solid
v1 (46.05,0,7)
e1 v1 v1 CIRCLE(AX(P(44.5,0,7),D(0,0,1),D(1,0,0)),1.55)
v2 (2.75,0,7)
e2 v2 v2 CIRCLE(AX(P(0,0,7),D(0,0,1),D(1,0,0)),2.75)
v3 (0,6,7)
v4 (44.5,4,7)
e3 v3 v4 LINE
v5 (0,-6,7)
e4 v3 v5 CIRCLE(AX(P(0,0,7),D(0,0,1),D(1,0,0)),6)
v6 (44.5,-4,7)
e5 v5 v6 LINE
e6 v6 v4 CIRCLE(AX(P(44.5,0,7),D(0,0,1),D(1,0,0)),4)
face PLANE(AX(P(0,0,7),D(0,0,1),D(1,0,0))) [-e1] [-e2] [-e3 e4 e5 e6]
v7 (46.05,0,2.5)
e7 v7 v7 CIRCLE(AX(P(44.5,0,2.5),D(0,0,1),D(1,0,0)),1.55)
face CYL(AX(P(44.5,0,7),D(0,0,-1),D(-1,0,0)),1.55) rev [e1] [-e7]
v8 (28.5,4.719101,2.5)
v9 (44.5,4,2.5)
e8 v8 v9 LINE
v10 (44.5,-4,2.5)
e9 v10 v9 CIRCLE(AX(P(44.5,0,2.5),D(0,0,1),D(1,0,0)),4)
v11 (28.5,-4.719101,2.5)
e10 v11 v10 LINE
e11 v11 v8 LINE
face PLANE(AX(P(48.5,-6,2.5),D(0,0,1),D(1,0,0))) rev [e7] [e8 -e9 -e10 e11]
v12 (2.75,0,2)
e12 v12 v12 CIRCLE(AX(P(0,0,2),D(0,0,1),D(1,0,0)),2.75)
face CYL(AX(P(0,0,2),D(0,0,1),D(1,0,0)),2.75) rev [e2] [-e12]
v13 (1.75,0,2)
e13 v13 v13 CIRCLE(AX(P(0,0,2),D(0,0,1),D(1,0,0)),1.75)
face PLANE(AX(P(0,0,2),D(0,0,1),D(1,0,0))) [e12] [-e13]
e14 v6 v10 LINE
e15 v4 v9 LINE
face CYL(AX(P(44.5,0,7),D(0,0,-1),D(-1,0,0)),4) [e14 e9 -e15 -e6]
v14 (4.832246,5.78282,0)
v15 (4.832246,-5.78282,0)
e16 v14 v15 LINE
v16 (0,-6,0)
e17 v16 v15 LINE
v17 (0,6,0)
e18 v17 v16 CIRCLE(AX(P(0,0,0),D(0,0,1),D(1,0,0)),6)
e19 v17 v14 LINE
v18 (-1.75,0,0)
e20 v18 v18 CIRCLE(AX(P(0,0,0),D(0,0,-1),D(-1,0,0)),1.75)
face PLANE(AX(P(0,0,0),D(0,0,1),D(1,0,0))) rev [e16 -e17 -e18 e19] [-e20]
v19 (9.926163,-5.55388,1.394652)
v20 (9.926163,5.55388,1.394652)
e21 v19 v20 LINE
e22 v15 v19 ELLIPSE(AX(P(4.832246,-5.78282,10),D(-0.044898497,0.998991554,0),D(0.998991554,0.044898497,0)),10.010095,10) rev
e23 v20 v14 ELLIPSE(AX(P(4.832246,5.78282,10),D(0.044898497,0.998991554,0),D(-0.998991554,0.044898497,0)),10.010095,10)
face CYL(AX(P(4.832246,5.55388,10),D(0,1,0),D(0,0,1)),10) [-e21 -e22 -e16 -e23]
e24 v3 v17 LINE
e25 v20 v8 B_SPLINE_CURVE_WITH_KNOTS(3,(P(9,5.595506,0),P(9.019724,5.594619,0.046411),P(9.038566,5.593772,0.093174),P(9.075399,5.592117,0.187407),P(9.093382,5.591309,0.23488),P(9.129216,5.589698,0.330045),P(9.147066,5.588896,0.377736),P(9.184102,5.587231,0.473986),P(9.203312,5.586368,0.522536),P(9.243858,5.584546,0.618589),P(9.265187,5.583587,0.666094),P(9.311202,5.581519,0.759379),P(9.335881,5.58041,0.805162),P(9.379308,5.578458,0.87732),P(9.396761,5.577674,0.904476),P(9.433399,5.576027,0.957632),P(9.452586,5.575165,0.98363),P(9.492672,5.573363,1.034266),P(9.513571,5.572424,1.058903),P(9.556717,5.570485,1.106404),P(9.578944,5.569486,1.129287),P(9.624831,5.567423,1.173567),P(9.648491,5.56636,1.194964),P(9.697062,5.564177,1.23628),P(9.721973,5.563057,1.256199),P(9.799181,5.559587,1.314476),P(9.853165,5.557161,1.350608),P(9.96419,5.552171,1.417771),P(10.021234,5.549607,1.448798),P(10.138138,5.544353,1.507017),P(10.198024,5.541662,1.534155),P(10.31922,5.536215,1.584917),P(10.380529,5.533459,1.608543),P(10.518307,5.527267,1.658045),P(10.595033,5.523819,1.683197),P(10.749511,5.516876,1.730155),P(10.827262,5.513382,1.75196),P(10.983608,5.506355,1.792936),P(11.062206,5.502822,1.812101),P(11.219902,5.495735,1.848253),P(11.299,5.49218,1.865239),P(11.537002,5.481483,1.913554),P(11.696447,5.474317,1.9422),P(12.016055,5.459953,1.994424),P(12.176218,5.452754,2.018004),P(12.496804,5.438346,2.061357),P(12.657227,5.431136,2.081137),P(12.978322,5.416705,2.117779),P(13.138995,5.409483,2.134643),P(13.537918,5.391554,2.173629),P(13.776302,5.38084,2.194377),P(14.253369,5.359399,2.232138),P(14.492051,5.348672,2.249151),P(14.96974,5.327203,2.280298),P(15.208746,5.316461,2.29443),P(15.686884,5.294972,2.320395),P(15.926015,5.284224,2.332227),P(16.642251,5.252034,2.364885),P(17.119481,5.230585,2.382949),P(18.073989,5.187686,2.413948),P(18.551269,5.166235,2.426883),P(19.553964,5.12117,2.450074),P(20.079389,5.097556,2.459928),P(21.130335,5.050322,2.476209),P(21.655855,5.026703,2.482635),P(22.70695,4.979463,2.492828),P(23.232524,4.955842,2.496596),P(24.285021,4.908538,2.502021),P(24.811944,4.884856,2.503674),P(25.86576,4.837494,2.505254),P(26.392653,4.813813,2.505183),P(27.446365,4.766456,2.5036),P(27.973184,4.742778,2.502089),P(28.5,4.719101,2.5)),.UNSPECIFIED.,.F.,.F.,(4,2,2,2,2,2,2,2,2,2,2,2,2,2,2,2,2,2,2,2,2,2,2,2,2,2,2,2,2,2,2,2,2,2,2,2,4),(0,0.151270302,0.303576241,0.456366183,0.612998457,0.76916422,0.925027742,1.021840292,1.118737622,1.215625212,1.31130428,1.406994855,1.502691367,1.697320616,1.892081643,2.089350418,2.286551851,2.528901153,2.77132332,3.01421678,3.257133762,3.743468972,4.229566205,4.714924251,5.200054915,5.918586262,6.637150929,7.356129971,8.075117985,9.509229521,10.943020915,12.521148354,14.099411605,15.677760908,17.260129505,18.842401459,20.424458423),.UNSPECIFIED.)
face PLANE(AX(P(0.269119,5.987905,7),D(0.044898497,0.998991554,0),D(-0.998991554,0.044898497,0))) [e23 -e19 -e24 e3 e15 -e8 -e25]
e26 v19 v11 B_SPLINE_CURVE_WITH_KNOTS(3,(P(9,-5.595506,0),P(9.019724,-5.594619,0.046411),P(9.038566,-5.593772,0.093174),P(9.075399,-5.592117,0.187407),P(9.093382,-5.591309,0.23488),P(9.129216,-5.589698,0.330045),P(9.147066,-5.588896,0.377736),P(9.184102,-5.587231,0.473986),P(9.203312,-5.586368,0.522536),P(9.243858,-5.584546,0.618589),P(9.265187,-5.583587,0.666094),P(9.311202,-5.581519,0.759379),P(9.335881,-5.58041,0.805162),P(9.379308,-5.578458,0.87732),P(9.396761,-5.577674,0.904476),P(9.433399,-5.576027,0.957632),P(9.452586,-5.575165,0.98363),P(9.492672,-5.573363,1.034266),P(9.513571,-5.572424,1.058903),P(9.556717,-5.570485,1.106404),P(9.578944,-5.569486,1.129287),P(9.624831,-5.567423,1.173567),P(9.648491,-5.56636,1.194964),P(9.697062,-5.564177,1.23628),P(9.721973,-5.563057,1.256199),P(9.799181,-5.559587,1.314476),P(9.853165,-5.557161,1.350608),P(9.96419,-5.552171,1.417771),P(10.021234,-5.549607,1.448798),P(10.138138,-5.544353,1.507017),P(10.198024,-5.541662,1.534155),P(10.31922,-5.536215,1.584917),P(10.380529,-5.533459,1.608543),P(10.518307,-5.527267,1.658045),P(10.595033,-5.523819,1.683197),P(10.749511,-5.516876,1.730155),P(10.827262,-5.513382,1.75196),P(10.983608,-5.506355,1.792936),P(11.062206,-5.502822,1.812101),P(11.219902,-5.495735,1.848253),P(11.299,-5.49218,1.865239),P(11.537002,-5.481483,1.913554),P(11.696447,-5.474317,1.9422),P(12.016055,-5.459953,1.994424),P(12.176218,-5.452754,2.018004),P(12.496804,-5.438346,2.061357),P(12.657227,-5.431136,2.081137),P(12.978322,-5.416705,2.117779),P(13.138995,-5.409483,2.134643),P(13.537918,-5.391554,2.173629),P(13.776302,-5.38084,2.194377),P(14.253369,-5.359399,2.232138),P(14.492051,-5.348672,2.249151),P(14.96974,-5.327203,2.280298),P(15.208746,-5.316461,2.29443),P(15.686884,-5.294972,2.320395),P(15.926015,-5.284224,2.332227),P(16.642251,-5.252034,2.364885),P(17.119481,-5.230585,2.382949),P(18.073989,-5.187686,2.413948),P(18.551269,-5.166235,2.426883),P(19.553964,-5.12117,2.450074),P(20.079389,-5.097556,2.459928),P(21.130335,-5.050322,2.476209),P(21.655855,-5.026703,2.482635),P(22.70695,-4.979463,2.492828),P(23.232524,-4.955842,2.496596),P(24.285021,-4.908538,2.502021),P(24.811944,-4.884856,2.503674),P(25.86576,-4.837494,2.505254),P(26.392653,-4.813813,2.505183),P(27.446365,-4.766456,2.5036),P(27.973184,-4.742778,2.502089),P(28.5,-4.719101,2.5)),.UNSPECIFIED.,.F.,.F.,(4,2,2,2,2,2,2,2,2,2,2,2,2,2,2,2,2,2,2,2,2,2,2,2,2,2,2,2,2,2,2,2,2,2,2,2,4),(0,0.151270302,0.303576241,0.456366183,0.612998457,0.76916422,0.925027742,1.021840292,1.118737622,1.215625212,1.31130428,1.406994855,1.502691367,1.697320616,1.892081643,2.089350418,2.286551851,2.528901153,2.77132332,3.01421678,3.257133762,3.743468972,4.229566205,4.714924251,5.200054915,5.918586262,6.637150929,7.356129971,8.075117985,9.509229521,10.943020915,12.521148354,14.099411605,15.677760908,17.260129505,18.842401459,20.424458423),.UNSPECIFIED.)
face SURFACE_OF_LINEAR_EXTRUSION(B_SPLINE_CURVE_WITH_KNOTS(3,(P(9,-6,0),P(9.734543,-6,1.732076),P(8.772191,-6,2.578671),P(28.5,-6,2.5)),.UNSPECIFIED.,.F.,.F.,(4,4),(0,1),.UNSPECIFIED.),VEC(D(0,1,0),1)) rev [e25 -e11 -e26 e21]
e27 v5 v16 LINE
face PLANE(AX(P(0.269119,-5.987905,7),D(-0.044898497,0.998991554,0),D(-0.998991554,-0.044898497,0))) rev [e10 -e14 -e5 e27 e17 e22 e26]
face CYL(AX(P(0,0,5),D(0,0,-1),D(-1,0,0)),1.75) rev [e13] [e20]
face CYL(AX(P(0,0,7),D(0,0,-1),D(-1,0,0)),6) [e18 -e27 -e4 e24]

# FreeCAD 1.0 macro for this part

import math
import FreeCAD as App
import Part
import Sketcher
from FreeCAD import Vector


def edges_at(feature, points):
    """Names of the edges that pass closest to the given points."""
    edges = feature.Shape.Edges
    near = lambda p: min(range(len(edges)), key=lambda i: edges[i].distToShape(Part.Vertex(*p))[0])
    return sorted({f"Edge{near(p) + 1}" for p in points})

doc = App.newDocument("Part")
body = doc.addObject("PartDesign::Body", "Body")

sketch1 = body.newObject("Sketcher::SketchObject", "Sketch")
sketch1.AttachmentSupport = (doc.getObject("XY_Plane"), [""])
sketch1.MapMode = "FlatFace"
sketch1.addGeometry(Part.ArcOfCircle(Part.Circle(Vector(0, 0, 0), Vector(0, 0, 1), 6), math.radians(90), math.radians(270)), False)
sketch1.addGeometry(Part.LineSegment(Vector(0, -6, 0), Vector(44.5, -4, 0)), False)
sketch1.addGeometry(Part.ArcOfCircle(Part.Circle(Vector(44.5, 0, 0), Vector(0, 0, 1), 4), math.radians(-90), math.radians(90)), False)
sketch1.addGeometry(Part.LineSegment(Vector(44.5, 4, 0), Vector(0, 6, 0)), False)
sketch1.addGeometry(Part.Circle(Vector(44.5, 0, 0), Vector(0, 0, 1), 1.55), False)
sketch1.addConstraint(Sketcher.Constraint("Coincident", 0, 2, 1, 1))
sketch1.addConstraint(Sketcher.Constraint("Coincident", 1, 2, 2, 1))
sketch1.addConstraint(Sketcher.Constraint("Coincident", 2, 2, 3, 1))
sketch1.addConstraint(Sketcher.Constraint("Coincident", 3, 2, 0, 1))
sketch1.addConstraint(Sketcher.Constraint("Coincident", 0, 3, -1, 1))
sketch1.addConstraint(Sketcher.Constraint("Coincident", 4, 3, 2, 3))
sketch1.addConstraint(Sketcher.Constraint("Symmetric", 1, 2, 2, 2, -1))
sketch1.addConstraint(Sketcher.Constraint("PointOnObject", 0, 2, -2))
sketch1.addConstraint(Sketcher.Constraint("PointOnObject", 3, 2, -2))
sketch1.addConstraint(Sketcher.Constraint("Vertical", 4, 3, 1, 2))
sketch1.addConstraint(Sketcher.Constraint("Radius", 0, 6.0))
sketch1.addConstraint(Sketcher.Constraint("Radius", 2, 4.0))
sketch1.addConstraint(Sketcher.Constraint("Diameter", 4, 3.1))
sketch1.addConstraint(Sketcher.Constraint("DistanceX", -1, 1, 2, 3, 44.5))
pad1 = body.newObject("PartDesign::Pad", "Pad")
pad1.Profile = sketch1
pad1.Length = 7

sketch2 = body.newObject("Sketcher::SketchObject", "Sketch001")
sketch2.AttachmentSupport = (doc.getObject("XY_Plane"), [""])
sketch2.MapMode = "FlatFace"
sketch2.AttachmentOffset = App.Placement(Vector(0, 0, 7), App.Rotation())
sketch2.addGeometry(Part.Circle(Vector(0, 0, 0), Vector(0, 0, 1), 2.75), False)
sketch2.addConstraint(Sketcher.Constraint("Coincident", 0, 3, -1, 1))
sketch2.addConstraint(Sketcher.Constraint("Diameter", 0, 5.5))
pocket1 = body.newObject("PartDesign::Pocket", "Pocket")
pocket1.Profile = sketch2
pocket1.Length = 5

sketch3 = body.newObject("Sketcher::SketchObject", "Sketch002")
sketch3.AttachmentSupport = (doc.getObject("XY_Plane"), [""])
sketch3.MapMode = "FlatFace"
sketch3.addGeometry(Part.Circle(Vector(0, 0, 0), Vector(0, 0, 1), 1.75), False)
sketch3.addConstraint(Sketcher.Constraint("Coincident", 0, 3, -1, 1))
sketch3.addConstraint(Sketcher.Constraint("Diameter", 0, 3.5))
pocket2 = body.newObject("PartDesign::Pocket", "Pocket001")
pocket2.Profile = sketch3
pocket2.Length = 5
pocket2.Reversed = True

sketch4 = body.newObject("Sketcher::SketchObject", "Sketch003")
sketch4.AttachmentSupport = (doc.getObject("XZ_Plane"), [""])
sketch4.MapMode = "FlatFace"
sketch4.addGeometry(Part.LineSegment(Vector(48.5, 2.5, 0), Vector(48.5, 0, 0)), False)
sketch4.addGeometry(Part.LineSegment(Vector(48.5, 0, 0), Vector(9, 0, 0)), False)
sketch4.addGeometry(Part.BSplineCurve([Vector(9, 0, 0), Vector(9.734543, 1.732076, 0), Vector(8.772191, 2.578671, 0), Vector(28.5, 2.5, 0)], [4, 4], [0, 1], False, 3, [1, 1, 1, 1], False), False)
sketch4.addGeometry(Part.LineSegment(Vector(28.5, 2.5, 0), Vector(48.5, 2.5, 0)), False)
sketch4.addConstraint(Sketcher.Constraint("Block", 2))
sketch4.addConstraint(Sketcher.Constraint("Coincident", 0, 2, 1, 1))
sketch4.addConstraint(Sketcher.Constraint("Coincident", 1, 2, 2, 1))
sketch4.addConstraint(Sketcher.Constraint("Coincident", 2, 2, 3, 1))
sketch4.addConstraint(Sketcher.Constraint("Coincident", 3, 2, 0, 1))
sketch4.addConstraint(Sketcher.Constraint("Vertical", 0))
sketch4.addConstraint(Sketcher.Constraint("Horizontal", 1))
sketch4.addConstraint(Sketcher.Constraint("Horizontal", 3))
sketch4.addConstraint(Sketcher.Constraint("DistanceX", 3, 1, 3, 2, 20.0))
pocket3 = body.newObject("PartDesign::Pocket", "Pocket002")
pocket3.Profile = sketch4
pocket3.Type = "ThroughAll"
pocket3.Midplane = True
doc.recompute()

fillet = body.newObject("PartDesign::Fillet", "Fillet")
fillet.Base = (pocket3, edges_at(pocket3, [(9, 2.798, 0)]))
fillet.Radius = 10

doc.recompute()
